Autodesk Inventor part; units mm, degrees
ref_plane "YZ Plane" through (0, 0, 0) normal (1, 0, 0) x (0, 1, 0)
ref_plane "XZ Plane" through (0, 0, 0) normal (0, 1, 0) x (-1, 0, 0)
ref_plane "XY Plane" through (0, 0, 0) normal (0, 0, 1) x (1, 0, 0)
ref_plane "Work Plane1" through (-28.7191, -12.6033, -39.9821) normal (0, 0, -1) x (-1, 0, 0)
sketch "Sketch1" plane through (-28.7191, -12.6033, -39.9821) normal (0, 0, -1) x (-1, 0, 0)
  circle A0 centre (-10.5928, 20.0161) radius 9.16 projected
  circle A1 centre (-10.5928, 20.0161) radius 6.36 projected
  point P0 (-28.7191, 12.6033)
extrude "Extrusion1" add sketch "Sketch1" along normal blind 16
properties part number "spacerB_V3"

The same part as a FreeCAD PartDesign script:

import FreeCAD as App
import Part
import Sketcher

V = App.Vector
Q = App.Units.Quantity

doc = App.newDocument("Part")
body = doc.addObject("PartDesign::Body", "Body")

# Sketch on XY plane
sketch1 = body.newObject("Sketcher::SketchObject", "Sketch")
sketch1.AttachmentSupport = (doc.getObject("XY_Plane"), [""])
sketch1.MapMode = "FlatFace"
sketch1.AttachmentOffset = App.Placement(V(0, 0, -39.9821), App.Rotation())
sketch1.addGeometry(Part.Circle(V(-18, 7, 0), V(0, 0, 1), 9), False)
sketch1.addGeometry(Part.Circle(V(-18, 7, 0), V(0, 0, 1), 6), False)
sketch1.addConstraint(Sketcher.Constraint("Coincident", 1, 3, 0, 3))
sketch1.addConstraint(Sketcher.Constraint("Diameter", 0, Q("18.32 mm")))
sketch1.addConstraint(Sketcher.Constraint("Diameter", 1, Q("12.72 mm")))
sketch1.addConstraint(Sketcher.Constraint("DistanceX", 0, 3, -1, 1, Q("18.1263 mm")))
sketch1.addConstraint(Sketcher.Constraint("DistanceY", -1, 1, 0, 3, Q("7.4128 mm")))
pad1 = body.newObject("PartDesign::Pad", "Pad")
pad1.Profile = sketch1
pad1.Length = 16
pad1.Reversed = True

doc.recompute()
